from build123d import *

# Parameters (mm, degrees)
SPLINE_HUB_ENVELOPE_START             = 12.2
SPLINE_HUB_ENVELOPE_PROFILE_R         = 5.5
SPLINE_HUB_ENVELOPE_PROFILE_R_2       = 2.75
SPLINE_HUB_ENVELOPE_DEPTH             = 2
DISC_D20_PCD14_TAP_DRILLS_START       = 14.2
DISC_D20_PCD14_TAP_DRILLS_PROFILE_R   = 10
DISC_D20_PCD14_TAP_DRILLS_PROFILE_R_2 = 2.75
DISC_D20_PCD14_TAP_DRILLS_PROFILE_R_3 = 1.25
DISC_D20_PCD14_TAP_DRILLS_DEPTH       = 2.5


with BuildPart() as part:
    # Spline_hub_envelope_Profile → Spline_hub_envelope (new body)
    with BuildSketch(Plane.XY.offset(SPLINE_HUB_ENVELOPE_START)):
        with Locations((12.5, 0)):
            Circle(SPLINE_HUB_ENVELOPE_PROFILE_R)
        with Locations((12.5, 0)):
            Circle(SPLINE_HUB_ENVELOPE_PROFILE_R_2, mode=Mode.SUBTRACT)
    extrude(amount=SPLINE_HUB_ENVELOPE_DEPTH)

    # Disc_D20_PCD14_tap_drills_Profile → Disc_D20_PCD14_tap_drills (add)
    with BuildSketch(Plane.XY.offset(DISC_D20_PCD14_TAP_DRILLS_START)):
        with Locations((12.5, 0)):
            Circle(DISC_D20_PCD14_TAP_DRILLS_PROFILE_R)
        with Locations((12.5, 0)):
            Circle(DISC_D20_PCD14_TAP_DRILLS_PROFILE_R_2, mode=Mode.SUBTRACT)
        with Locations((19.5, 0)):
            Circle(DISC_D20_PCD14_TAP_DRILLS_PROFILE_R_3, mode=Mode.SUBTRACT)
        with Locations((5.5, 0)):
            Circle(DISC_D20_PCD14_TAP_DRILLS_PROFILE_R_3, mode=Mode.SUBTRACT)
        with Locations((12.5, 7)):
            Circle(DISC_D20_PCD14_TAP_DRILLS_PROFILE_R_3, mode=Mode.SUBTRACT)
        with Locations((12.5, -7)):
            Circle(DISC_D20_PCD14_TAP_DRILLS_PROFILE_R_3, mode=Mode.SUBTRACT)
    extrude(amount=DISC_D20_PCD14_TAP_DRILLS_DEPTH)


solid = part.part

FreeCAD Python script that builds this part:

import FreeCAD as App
import Part
import Sketcher

V = App.Vector

doc = App.newDocument("Part")
body = doc.addObject("PartDesign::Body", "Body")

# Sketch on XY plane
sketch1 = body.newObject("Sketcher::SketchObject", "Sketch")
sketch1.AttachmentSupport = (doc.getObject("XY_Plane"), [""])
sketch1.MapMode = "FlatFace"
sketch1.AttachmentOffset = App.Placement(V(0, 0, 12.2), App.Rotation())
sketch1.addGeometry([
    Part.Circle(V(12.5, 0, 0), V(0, 0, 1), 5.5),
    Part.Circle(V(12.5, 0, 0), V(0, 0, 1), 2.8),
], False)
sketch1.addConstraint([
    Sketcher.Constraint("Coincident", 1, 3, 0, 3),
    Sketcher.Constraint("PointOnObject", 0, 3, -1),
    Sketcher.Constraint("Diameter", 0, 11.0),
    Sketcher.Constraint("Diameter", 1, 5.5),
    Sketcher.Constraint("DistanceX", -1, 1, 0, 3, 12.5),
])
pad1 = body.newObject("PartDesign::Pad", "Pad")
pad1.Profile = sketch1
pad1.Length = 2

# Sketch on XY plane
sketch2 = body.newObject("Sketcher::SketchObject", "Sketch001")
sketch2.AttachmentSupport = (doc.getObject("XY_Plane"), [""])
sketch2.MapMode = "FlatFace"
sketch2.AttachmentOffset = App.Placement(V(0, 0, 14.2), App.Rotation())
sketch2.addGeometry([
    Part.Circle(V(12.5, 0, 0), V(0, 0, 1), 10),  # 0
    Part.Circle(V(12.5, -7, 0), V(0, 0, 1), 1.2),  # 1
    Part.Circle(V(5.5, 0, 0), V(0, 0, 1), 1.2),  # 2
    Part.Circle(V(12.5, 0, 0), V(0, 0, 1), 2.8),  # 3
    Part.Circle(V(19.5, 0, 0), V(0, 0, 1), 1.2),  # 4
    Part.Circle(V(12.5, 7, 0), V(0, 0, 1), 1.2),  # 5
], False)
sketch2.addConstraint([
    Sketcher.Constraint("Coincident", 3, 3, 0, 3),
    Sketcher.Constraint("Equal", 1, 2),
    Sketcher.Constraint("Equal", 2, 4),
    Sketcher.Constraint("Equal", 4, 5),
    Sketcher.Constraint("Symmetric", 1, 3, 5, 3, -1),
    Sketcher.Constraint("PointOnObject", 0, 3, -1),
    Sketcher.Constraint("PointOnObject", 2, 3, -1),
    Sketcher.Constraint("PointOnObject", 4, 3, -1),
    Sketcher.Constraint("Vertical", 0, 3, 1, 3),
    Sketcher.Constraint("Diameter", 0, 20.0),
    Sketcher.Constraint("Diameter", 1, 2.5),
    Sketcher.Constraint("Diameter", 3, 5.5),
    Sketcher.Constraint("DistanceY", 1, 3, -1, 1, 7.0),
    Sketcher.Constraint("DistanceX", 2, 3, 0, 3, 7.0),
    Sketcher.Constraint("DistanceX", 0, 3, 4, 3, 7.0),
    Sketcher.Constraint("DistanceX", -1, 1, 0, 3, 12.5),
])
pad2 = body.newObject("PartDesign::Pad", "Pad001")
pad2.Profile = sketch2
pad2.Length = 2.5

doc.recompute()
